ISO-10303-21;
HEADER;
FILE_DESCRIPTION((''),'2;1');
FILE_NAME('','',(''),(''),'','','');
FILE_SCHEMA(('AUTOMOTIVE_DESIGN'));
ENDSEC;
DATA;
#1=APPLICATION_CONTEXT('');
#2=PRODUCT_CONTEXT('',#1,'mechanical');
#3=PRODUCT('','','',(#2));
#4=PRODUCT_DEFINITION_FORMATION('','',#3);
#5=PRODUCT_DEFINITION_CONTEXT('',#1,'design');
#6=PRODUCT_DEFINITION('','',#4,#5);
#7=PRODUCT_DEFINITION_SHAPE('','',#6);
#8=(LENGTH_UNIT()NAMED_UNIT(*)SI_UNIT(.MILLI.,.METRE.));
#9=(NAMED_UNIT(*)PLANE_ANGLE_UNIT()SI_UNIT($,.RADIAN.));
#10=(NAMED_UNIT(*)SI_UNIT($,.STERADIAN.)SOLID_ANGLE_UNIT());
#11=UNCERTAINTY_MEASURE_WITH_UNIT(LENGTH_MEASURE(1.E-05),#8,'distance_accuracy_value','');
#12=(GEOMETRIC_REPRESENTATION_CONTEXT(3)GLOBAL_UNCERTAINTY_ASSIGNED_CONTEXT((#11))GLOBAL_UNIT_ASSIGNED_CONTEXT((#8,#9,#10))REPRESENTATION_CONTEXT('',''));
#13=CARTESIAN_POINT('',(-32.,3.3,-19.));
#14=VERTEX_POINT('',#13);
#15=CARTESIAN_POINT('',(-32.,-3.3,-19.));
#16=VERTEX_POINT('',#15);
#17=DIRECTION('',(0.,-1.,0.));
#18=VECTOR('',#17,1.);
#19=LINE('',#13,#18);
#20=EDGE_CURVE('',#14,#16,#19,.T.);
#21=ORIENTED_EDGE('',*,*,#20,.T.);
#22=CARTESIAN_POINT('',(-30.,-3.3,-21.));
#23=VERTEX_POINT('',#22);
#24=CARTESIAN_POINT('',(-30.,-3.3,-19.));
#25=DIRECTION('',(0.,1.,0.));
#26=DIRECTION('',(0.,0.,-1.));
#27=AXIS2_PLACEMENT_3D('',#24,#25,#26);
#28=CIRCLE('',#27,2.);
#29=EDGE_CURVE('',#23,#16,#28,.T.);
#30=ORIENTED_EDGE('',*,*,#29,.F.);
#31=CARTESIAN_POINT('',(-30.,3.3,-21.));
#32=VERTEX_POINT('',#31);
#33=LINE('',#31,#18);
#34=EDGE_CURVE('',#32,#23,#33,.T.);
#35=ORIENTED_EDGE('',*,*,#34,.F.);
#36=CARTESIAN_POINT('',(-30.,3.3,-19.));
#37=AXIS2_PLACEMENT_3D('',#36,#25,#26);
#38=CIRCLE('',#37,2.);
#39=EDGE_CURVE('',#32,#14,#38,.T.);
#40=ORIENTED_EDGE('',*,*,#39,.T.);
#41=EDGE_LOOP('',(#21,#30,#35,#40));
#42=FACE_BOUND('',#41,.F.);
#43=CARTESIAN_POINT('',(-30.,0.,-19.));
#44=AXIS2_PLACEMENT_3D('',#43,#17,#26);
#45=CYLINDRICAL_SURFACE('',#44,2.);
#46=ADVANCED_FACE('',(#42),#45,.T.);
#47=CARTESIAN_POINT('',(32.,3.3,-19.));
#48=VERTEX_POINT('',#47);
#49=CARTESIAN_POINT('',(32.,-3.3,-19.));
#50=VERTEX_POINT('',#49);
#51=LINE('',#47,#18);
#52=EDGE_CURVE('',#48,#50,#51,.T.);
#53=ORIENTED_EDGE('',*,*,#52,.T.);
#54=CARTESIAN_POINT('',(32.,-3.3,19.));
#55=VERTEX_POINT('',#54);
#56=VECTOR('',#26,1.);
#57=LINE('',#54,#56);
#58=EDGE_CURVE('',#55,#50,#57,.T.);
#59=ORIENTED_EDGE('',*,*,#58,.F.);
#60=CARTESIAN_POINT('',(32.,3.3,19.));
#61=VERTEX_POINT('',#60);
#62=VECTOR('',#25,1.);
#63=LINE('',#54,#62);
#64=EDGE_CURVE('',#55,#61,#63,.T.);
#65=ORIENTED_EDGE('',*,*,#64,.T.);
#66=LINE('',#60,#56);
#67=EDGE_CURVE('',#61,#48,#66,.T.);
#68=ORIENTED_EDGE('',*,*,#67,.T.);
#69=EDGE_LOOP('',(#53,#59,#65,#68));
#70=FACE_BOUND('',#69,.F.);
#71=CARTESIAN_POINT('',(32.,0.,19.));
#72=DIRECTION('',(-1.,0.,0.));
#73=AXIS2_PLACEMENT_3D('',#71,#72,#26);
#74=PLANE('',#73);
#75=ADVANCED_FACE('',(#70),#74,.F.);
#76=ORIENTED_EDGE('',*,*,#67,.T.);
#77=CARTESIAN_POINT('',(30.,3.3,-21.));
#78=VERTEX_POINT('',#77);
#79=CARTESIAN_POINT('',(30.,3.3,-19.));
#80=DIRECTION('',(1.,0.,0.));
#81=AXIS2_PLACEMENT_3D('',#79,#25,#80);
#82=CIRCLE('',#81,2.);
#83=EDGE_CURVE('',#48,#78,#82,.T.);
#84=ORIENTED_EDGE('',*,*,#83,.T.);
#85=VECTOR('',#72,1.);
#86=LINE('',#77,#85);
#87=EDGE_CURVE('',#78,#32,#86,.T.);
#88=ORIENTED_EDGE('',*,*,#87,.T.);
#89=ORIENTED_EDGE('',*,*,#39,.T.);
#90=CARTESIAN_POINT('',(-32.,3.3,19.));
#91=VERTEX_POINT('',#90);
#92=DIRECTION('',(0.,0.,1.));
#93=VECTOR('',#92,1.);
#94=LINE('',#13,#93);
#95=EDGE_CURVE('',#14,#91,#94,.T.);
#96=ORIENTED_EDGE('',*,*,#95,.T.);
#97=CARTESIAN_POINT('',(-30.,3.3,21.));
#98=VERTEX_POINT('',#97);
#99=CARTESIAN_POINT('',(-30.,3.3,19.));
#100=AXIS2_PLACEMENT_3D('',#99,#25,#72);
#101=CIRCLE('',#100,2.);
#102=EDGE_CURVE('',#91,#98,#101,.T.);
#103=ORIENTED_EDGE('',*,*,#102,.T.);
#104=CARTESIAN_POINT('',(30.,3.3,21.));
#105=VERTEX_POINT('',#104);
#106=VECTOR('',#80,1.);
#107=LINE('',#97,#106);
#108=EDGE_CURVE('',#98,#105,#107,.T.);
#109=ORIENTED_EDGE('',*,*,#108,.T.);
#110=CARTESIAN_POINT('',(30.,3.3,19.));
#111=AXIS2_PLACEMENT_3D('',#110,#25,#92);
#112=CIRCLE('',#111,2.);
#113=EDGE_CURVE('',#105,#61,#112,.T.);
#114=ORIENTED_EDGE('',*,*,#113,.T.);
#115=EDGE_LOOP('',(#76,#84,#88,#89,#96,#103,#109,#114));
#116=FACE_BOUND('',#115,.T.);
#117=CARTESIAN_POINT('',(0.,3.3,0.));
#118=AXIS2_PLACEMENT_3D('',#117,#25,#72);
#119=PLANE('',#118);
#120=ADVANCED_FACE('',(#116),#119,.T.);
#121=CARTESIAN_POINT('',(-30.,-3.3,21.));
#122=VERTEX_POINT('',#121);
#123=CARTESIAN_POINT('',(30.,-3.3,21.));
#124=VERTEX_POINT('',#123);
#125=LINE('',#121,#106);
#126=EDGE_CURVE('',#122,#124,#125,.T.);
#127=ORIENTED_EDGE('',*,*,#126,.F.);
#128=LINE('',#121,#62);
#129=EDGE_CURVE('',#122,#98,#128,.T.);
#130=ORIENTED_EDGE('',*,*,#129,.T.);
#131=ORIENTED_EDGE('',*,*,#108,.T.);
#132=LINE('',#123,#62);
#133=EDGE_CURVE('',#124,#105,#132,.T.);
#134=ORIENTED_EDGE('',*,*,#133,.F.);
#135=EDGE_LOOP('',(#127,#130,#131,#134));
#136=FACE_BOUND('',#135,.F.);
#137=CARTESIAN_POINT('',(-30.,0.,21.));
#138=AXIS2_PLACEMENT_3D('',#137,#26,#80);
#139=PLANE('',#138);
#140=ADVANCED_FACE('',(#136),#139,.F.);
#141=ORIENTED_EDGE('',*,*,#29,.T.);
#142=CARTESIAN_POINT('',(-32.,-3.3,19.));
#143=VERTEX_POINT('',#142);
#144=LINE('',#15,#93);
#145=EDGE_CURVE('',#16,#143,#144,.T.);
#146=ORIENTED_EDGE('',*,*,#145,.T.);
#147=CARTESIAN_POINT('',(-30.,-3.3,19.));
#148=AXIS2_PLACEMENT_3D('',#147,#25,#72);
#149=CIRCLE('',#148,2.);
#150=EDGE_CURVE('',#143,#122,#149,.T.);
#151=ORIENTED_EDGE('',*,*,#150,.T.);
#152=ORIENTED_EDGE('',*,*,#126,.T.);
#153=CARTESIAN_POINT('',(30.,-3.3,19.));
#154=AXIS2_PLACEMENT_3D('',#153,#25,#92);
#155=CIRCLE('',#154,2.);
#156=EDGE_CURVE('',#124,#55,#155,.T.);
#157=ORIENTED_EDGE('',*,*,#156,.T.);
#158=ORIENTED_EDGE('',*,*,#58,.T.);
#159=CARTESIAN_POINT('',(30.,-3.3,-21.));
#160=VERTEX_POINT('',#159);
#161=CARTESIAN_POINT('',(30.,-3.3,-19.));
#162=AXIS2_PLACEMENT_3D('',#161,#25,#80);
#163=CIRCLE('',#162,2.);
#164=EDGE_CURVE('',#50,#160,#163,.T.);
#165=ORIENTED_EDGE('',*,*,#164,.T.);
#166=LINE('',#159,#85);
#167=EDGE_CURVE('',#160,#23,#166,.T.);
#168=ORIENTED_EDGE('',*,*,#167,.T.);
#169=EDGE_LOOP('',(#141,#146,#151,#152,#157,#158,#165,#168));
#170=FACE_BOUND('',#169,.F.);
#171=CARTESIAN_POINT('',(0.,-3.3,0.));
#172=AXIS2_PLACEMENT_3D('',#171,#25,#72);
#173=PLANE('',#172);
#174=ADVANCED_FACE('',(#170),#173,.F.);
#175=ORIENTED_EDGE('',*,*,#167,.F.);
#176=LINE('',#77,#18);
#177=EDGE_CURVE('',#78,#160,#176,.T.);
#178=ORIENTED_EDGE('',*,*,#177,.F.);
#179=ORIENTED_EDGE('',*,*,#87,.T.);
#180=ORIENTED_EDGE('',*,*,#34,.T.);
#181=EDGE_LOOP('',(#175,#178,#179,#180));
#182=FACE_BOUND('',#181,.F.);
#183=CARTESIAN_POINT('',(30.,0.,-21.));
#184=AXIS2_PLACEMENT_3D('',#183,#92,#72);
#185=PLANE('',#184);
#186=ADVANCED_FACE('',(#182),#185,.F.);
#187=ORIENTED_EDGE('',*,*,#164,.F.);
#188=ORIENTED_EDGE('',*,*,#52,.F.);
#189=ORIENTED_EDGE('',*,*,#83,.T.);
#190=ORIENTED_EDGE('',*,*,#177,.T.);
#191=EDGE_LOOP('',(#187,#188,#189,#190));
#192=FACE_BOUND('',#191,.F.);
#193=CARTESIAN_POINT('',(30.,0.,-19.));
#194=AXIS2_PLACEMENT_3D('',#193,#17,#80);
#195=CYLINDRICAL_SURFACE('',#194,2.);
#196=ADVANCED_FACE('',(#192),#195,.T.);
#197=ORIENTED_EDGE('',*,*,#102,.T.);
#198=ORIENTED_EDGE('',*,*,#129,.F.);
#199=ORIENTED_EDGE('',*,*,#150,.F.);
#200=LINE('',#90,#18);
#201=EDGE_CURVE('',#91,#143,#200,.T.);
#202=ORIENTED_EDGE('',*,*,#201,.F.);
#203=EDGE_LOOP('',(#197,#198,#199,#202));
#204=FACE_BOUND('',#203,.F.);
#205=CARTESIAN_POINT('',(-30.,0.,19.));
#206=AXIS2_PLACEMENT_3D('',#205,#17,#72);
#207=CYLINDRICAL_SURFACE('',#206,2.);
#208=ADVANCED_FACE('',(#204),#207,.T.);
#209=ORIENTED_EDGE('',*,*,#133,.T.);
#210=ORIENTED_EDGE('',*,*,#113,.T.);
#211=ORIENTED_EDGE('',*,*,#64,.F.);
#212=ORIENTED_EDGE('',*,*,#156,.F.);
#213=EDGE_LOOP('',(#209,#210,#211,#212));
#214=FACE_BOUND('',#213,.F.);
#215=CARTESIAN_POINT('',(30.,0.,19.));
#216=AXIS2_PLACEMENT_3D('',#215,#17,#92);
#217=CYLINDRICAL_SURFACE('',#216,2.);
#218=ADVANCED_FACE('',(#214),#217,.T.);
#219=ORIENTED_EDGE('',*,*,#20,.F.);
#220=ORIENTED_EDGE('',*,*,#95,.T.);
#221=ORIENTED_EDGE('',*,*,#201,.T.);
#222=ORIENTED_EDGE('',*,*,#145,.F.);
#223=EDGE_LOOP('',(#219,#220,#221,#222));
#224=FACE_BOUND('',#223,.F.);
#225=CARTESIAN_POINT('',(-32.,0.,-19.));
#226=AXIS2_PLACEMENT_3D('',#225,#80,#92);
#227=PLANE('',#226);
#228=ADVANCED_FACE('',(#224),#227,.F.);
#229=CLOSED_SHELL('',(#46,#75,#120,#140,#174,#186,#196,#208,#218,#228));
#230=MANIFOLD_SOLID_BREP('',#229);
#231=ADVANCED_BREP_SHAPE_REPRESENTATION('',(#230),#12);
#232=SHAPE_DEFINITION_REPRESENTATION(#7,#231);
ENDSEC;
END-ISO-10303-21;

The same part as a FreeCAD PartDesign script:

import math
import FreeCAD as App
import Part
import Sketcher

V = App.Vector

doc = App.newDocument("Part")
body = doc.addObject("PartDesign::Body", "Body")

# Sketch on XZ plane
sketch1 = body.newObject("Sketcher::SketchObject", "Sketch")
sketch1.AttachmentSupport = (doc.getObject("XZ_Plane"), [""])
sketch1.MapMode = "FlatFace"
sketch1.addGeometry(Part.ArcOfCircle(Part.Circle(V(-30, 19, 0), V(0, 0, 1), 2), math.radians(90), math.radians(180)), False)
sketch1.addGeometry(Part.LineSegment(V(-30, 21, 0), V(30, 21, 0)), False)
sketch1.addGeometry(Part.ArcOfCircle(Part.Circle(V(30, 19, 0), V(0, 0, 1), 2), math.radians(0), math.radians(90)), False)
sketch1.addGeometry(Part.LineSegment(V(32, 19, 0), V(32, -19, 0)), False)
sketch1.addGeometry(Part.ArcOfCircle(Part.Circle(V(30, -19, 0), V(0, 0, 1), 2), math.radians(-90), math.radians(0)), False)
sketch1.addGeometry(Part.LineSegment(V(30, -21, 0), V(-30, -21, 0)), False)
sketch1.addGeometry(Part.ArcOfCircle(Part.Circle(V(-30, -19, 0), V(0, 0, 1), 2), math.radians(180), math.radians(270)), False)
sketch1.addGeometry(Part.LineSegment(V(-32, -19, 0), V(-32, 19, 0)), False)
sketch1.addConstraint(Sketcher.Constraint("Tangent", 0, 1, 1, 1))
sketch1.addConstraint(Sketcher.Constraint("Tangent", 1, 2, 2, 2))
sketch1.addConstraint(Sketcher.Constraint("Tangent", 2, 1, 3, 1))
sketch1.addConstraint(Sketcher.Constraint("Tangent", 3, 2, 4, 2))
sketch1.addConstraint(Sketcher.Constraint("Tangent", 4, 1, 5, 1))
sketch1.addConstraint(Sketcher.Constraint("Tangent", 5, 2, 6, 2))
sketch1.addConstraint(Sketcher.Constraint("Tangent", 6, 1, 7, 1))
sketch1.addConstraint(Sketcher.Constraint("Tangent", 7, 2, 0, 2))
sketch1.addConstraint(Sketcher.Constraint("Horizontal", 1))
sketch1.addConstraint(Sketcher.Constraint("Vertical", 3))
sketch1.addConstraint(Sketcher.Constraint("Horizontal", 5))
sketch1.addConstraint(Sketcher.Constraint("Vertical", 7))
sketch1.addConstraint(Sketcher.Constraint("Equal", 0, 2))
sketch1.addConstraint(Sketcher.Constraint("Equal", 2, 4))
sketch1.addConstraint(Sketcher.Constraint("Equal", 4, 6))
sketch1.addConstraint(Sketcher.Constraint("Symmetric", 0, 3, 4, 3, -1, 1))
sketch1.addConstraint(Sketcher.Constraint("Radius", 0, 2.0))
sketch1.addConstraint(Sketcher.Constraint("DistanceY", 4, 1, 1, 2, 42.0))
sketch1.addConstraint(Sketcher.Constraint("DistanceX", 1, 1, 1, 2, 60.0))
pad1 = body.newObject("PartDesign::Pad", "Pad")
pad1.Profile = sketch1
pad1.Length = 6.6
pad1.Midplane = True

doc.recompute()
